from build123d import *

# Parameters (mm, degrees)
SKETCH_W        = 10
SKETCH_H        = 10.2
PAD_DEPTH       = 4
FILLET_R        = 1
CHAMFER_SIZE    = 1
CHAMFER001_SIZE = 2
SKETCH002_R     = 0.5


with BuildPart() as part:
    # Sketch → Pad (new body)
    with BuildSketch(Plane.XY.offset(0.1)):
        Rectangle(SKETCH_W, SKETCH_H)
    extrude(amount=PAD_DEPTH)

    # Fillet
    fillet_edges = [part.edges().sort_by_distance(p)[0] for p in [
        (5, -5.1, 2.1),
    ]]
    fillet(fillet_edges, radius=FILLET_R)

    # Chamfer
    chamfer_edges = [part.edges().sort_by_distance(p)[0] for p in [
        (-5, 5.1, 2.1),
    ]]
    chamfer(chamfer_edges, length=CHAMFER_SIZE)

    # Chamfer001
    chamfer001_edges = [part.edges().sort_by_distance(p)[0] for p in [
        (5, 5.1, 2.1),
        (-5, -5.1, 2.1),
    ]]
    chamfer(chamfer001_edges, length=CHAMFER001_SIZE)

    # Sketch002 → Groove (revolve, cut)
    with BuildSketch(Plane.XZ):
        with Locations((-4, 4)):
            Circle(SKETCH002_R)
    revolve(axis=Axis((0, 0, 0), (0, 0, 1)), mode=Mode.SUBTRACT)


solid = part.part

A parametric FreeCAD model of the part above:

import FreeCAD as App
import Part
import Sketcher


def edges_at(feature, points):
    """Names of the edges that pass closest to the given points."""
    edges = feature.Shape.Edges
    near = lambda p: min(range(len(edges)), key=lambda i: edges[i].distToShape(Part.Vertex(*p))[0])
    return sorted({f"Edge{near(p) + 1}" for p in points})

doc = App.newDocument("Part")
body = doc.addObject("PartDesign::Body", "Body")

# Sketch on XY plane
sketch1 = body.newObject("Sketcher::SketchObject", "Sketch")
sketch1.AttachmentSupport = (doc.getObject("XY_Plane"), [""])
sketch1.MapMode = "FlatFace"
sketch1.AttachmentOffset = App.Placement(App.Vector(0, 0, 0.1), App.Rotation())
sketch1.addGeometry(Part.LineSegment(App.Vector(-5, 5.1, 0), App.Vector(-5, -5.1, 0)), False)
sketch1.addGeometry(Part.LineSegment(App.Vector(-5, -5.1, 0), App.Vector(5, -5.1, 0)), False)
sketch1.addGeometry(Part.LineSegment(App.Vector(5, -5.1, 0), App.Vector(5, 5.1, 0)), False)
sketch1.addGeometry(Part.LineSegment(App.Vector(5, 5.1, 0), App.Vector(-5, 5.1, 0)), False)
sketch1.addConstraint(Sketcher.Constraint("Coincident", 0, 2, 1, 1))
sketch1.addConstraint(Sketcher.Constraint("Coincident", 1, 2, 2, 1))
sketch1.addConstraint(Sketcher.Constraint("Coincident", 2, 2, 3, 1))
sketch1.addConstraint(Sketcher.Constraint("Coincident", 3, 2, 0, 1))
sketch1.addConstraint(Sketcher.Constraint("Vertical", 0))
sketch1.addConstraint(Sketcher.Constraint("Horizontal", 1))
sketch1.addConstraint(Sketcher.Constraint("Vertical", 2))
sketch1.addConstraint(Sketcher.Constraint("Horizontal", 3))
sketch1.addConstraint(Sketcher.Constraint("Symmetric", 0, 2, 2, 2, -1, 1))
sketch1.addConstraint(Sketcher.Constraint("DistanceX", 1, 1, 1, 2, 10.0))
sketch1.addConstraint(Sketcher.Constraint("DistanceY", 0, 2, 0, 1, 10.2))
pad1 = body.newObject("PartDesign::Pad", "Pad")
pad1.Profile = sketch1
pad1.Length = 4
doc.recompute()

fillet = body.newObject("PartDesign::Fillet", "Fillet")
fillet.Base = (pad1, edges_at(pad1, [(5, -5.1, 2.1)]))
fillet.Radius = 1
doc.recompute()

chamfer = body.newObject("PartDesign::Chamfer", "Chamfer")
chamfer.Base = (fillet, edges_at(fillet, [(-5, 5.1, 2.1)]))
chamfer.Size = 1
doc.recompute()

chamfer2 = body.newObject("PartDesign::Chamfer", "Chamfer001")
chamfer2.Base = (chamfer, edges_at(chamfer, [(5, 5.1, 2.1), (-5, -5.1, 2.1)]))
chamfer2.Size = 2

# Sketch on XZ plane
sketch2 = body.newObject("Sketcher::SketchObject", "Sketch001")
sketch2.AttachmentSupport = (doc.getObject("XZ_Plane"), [""])
sketch2.MapMode = "FlatFace"
sketch2.addGeometry(Part.Circle(App.Vector(-4, 4, 0), App.Vector(0, 0, 1), 0.5), False)
sketch2.addConstraint(Sketcher.Constraint("Diameter", 0, 1.0))
sketch2.addConstraint(Sketcher.Constraint("DistanceX", 0, 3, -1, 1, 4.0))
sketch2.addConstraint(Sketcher.Constraint("DistanceY", -1, 1, 0, 3, 4.0))
groove = body.newObject("PartDesign::Groove", "Groove")
groove.Profile = sketch2
groove.ReferenceAxis = (sketch2, ["V_Axis"])
groove.Angle = 360

doc.recompute()
